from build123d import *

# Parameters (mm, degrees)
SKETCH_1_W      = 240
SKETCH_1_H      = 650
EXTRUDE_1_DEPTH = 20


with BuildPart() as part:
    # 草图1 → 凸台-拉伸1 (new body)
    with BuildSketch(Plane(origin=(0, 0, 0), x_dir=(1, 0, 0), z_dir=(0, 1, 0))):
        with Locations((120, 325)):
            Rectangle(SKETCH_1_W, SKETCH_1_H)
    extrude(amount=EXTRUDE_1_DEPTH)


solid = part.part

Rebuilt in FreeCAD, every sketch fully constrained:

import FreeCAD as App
import Part
import Sketcher

V = App.Vector
Q = App.Units.Quantity

doc = App.newDocument("Part")
params = doc.addObject("Spreadsheet::Sheet", "Params")
for row, (alias, value) in enumerate([
    ("sketch1_width", "240 mm"),
    ("sketch1_height", "650 mm"),
    ("pad1_length", "20 mm"),
], start=1):
    params.set(f"A{row}", alias)
    params.set(f"B{row}", "=" + value)
    params.setAlias(f"B{row}", alias)

body = doc.addObject("PartDesign::Body", "Body")

# Sketch on XZ plane
sketch1 = body.newObject("Sketcher::SketchObject", "Sketch")
sketch1.AttachmentSupport = (doc.getObject("XZ_Plane"), [""])
sketch1.MapMode = "FlatFace"
sketch1.addGeometry([
    Part.LineSegment(V(0, -650, 0), V(0, 0, 0)),
    Part.LineSegment(V(0, 0, 0), V(240, 0, 0)),
    Part.LineSegment(V(240, 0, 0), V(240, -650, 0)),
    Part.LineSegment(V(240, -650, 0), V(0, -650, 0)),
], False)
sketch1.addConstraint([
    Sketcher.Constraint("Coincident", 0, 2, 1, 1),
    Sketcher.Constraint("Coincident", 1, 2, 2, 1),
    Sketcher.Constraint("Coincident", 2, 2, 3, 1),
    Sketcher.Constraint("Coincident", 3, 2, 0, 1),
    Sketcher.Constraint("Vertical", 0),
    Sketcher.Constraint("Horizontal", 1),
    Sketcher.Constraint("Vertical", 2),
    Sketcher.Constraint("Horizontal", 3),
    Sketcher.Constraint("Coincident", 0, 2, -1, 1),
    Sketcher.Constraint("DistanceX", 1, 1, 1, 2, Q("240 mm")),
    Sketcher.Constraint("DistanceY", 0, 1, 0, 2, Q("650 mm")),
])
sketch1.setExpression("Constraints[9]", "Params.sketch1_width")
sketch1.setExpression("Constraints[10]", "Params.sketch1_height")
pad1 = body.newObject("PartDesign::Pad", "Pad")
pad1.Profile = sketch1
pad1.setExpression("Length", "Params.pad1_length")
pad1.Reversed = True

doc.recompute()
